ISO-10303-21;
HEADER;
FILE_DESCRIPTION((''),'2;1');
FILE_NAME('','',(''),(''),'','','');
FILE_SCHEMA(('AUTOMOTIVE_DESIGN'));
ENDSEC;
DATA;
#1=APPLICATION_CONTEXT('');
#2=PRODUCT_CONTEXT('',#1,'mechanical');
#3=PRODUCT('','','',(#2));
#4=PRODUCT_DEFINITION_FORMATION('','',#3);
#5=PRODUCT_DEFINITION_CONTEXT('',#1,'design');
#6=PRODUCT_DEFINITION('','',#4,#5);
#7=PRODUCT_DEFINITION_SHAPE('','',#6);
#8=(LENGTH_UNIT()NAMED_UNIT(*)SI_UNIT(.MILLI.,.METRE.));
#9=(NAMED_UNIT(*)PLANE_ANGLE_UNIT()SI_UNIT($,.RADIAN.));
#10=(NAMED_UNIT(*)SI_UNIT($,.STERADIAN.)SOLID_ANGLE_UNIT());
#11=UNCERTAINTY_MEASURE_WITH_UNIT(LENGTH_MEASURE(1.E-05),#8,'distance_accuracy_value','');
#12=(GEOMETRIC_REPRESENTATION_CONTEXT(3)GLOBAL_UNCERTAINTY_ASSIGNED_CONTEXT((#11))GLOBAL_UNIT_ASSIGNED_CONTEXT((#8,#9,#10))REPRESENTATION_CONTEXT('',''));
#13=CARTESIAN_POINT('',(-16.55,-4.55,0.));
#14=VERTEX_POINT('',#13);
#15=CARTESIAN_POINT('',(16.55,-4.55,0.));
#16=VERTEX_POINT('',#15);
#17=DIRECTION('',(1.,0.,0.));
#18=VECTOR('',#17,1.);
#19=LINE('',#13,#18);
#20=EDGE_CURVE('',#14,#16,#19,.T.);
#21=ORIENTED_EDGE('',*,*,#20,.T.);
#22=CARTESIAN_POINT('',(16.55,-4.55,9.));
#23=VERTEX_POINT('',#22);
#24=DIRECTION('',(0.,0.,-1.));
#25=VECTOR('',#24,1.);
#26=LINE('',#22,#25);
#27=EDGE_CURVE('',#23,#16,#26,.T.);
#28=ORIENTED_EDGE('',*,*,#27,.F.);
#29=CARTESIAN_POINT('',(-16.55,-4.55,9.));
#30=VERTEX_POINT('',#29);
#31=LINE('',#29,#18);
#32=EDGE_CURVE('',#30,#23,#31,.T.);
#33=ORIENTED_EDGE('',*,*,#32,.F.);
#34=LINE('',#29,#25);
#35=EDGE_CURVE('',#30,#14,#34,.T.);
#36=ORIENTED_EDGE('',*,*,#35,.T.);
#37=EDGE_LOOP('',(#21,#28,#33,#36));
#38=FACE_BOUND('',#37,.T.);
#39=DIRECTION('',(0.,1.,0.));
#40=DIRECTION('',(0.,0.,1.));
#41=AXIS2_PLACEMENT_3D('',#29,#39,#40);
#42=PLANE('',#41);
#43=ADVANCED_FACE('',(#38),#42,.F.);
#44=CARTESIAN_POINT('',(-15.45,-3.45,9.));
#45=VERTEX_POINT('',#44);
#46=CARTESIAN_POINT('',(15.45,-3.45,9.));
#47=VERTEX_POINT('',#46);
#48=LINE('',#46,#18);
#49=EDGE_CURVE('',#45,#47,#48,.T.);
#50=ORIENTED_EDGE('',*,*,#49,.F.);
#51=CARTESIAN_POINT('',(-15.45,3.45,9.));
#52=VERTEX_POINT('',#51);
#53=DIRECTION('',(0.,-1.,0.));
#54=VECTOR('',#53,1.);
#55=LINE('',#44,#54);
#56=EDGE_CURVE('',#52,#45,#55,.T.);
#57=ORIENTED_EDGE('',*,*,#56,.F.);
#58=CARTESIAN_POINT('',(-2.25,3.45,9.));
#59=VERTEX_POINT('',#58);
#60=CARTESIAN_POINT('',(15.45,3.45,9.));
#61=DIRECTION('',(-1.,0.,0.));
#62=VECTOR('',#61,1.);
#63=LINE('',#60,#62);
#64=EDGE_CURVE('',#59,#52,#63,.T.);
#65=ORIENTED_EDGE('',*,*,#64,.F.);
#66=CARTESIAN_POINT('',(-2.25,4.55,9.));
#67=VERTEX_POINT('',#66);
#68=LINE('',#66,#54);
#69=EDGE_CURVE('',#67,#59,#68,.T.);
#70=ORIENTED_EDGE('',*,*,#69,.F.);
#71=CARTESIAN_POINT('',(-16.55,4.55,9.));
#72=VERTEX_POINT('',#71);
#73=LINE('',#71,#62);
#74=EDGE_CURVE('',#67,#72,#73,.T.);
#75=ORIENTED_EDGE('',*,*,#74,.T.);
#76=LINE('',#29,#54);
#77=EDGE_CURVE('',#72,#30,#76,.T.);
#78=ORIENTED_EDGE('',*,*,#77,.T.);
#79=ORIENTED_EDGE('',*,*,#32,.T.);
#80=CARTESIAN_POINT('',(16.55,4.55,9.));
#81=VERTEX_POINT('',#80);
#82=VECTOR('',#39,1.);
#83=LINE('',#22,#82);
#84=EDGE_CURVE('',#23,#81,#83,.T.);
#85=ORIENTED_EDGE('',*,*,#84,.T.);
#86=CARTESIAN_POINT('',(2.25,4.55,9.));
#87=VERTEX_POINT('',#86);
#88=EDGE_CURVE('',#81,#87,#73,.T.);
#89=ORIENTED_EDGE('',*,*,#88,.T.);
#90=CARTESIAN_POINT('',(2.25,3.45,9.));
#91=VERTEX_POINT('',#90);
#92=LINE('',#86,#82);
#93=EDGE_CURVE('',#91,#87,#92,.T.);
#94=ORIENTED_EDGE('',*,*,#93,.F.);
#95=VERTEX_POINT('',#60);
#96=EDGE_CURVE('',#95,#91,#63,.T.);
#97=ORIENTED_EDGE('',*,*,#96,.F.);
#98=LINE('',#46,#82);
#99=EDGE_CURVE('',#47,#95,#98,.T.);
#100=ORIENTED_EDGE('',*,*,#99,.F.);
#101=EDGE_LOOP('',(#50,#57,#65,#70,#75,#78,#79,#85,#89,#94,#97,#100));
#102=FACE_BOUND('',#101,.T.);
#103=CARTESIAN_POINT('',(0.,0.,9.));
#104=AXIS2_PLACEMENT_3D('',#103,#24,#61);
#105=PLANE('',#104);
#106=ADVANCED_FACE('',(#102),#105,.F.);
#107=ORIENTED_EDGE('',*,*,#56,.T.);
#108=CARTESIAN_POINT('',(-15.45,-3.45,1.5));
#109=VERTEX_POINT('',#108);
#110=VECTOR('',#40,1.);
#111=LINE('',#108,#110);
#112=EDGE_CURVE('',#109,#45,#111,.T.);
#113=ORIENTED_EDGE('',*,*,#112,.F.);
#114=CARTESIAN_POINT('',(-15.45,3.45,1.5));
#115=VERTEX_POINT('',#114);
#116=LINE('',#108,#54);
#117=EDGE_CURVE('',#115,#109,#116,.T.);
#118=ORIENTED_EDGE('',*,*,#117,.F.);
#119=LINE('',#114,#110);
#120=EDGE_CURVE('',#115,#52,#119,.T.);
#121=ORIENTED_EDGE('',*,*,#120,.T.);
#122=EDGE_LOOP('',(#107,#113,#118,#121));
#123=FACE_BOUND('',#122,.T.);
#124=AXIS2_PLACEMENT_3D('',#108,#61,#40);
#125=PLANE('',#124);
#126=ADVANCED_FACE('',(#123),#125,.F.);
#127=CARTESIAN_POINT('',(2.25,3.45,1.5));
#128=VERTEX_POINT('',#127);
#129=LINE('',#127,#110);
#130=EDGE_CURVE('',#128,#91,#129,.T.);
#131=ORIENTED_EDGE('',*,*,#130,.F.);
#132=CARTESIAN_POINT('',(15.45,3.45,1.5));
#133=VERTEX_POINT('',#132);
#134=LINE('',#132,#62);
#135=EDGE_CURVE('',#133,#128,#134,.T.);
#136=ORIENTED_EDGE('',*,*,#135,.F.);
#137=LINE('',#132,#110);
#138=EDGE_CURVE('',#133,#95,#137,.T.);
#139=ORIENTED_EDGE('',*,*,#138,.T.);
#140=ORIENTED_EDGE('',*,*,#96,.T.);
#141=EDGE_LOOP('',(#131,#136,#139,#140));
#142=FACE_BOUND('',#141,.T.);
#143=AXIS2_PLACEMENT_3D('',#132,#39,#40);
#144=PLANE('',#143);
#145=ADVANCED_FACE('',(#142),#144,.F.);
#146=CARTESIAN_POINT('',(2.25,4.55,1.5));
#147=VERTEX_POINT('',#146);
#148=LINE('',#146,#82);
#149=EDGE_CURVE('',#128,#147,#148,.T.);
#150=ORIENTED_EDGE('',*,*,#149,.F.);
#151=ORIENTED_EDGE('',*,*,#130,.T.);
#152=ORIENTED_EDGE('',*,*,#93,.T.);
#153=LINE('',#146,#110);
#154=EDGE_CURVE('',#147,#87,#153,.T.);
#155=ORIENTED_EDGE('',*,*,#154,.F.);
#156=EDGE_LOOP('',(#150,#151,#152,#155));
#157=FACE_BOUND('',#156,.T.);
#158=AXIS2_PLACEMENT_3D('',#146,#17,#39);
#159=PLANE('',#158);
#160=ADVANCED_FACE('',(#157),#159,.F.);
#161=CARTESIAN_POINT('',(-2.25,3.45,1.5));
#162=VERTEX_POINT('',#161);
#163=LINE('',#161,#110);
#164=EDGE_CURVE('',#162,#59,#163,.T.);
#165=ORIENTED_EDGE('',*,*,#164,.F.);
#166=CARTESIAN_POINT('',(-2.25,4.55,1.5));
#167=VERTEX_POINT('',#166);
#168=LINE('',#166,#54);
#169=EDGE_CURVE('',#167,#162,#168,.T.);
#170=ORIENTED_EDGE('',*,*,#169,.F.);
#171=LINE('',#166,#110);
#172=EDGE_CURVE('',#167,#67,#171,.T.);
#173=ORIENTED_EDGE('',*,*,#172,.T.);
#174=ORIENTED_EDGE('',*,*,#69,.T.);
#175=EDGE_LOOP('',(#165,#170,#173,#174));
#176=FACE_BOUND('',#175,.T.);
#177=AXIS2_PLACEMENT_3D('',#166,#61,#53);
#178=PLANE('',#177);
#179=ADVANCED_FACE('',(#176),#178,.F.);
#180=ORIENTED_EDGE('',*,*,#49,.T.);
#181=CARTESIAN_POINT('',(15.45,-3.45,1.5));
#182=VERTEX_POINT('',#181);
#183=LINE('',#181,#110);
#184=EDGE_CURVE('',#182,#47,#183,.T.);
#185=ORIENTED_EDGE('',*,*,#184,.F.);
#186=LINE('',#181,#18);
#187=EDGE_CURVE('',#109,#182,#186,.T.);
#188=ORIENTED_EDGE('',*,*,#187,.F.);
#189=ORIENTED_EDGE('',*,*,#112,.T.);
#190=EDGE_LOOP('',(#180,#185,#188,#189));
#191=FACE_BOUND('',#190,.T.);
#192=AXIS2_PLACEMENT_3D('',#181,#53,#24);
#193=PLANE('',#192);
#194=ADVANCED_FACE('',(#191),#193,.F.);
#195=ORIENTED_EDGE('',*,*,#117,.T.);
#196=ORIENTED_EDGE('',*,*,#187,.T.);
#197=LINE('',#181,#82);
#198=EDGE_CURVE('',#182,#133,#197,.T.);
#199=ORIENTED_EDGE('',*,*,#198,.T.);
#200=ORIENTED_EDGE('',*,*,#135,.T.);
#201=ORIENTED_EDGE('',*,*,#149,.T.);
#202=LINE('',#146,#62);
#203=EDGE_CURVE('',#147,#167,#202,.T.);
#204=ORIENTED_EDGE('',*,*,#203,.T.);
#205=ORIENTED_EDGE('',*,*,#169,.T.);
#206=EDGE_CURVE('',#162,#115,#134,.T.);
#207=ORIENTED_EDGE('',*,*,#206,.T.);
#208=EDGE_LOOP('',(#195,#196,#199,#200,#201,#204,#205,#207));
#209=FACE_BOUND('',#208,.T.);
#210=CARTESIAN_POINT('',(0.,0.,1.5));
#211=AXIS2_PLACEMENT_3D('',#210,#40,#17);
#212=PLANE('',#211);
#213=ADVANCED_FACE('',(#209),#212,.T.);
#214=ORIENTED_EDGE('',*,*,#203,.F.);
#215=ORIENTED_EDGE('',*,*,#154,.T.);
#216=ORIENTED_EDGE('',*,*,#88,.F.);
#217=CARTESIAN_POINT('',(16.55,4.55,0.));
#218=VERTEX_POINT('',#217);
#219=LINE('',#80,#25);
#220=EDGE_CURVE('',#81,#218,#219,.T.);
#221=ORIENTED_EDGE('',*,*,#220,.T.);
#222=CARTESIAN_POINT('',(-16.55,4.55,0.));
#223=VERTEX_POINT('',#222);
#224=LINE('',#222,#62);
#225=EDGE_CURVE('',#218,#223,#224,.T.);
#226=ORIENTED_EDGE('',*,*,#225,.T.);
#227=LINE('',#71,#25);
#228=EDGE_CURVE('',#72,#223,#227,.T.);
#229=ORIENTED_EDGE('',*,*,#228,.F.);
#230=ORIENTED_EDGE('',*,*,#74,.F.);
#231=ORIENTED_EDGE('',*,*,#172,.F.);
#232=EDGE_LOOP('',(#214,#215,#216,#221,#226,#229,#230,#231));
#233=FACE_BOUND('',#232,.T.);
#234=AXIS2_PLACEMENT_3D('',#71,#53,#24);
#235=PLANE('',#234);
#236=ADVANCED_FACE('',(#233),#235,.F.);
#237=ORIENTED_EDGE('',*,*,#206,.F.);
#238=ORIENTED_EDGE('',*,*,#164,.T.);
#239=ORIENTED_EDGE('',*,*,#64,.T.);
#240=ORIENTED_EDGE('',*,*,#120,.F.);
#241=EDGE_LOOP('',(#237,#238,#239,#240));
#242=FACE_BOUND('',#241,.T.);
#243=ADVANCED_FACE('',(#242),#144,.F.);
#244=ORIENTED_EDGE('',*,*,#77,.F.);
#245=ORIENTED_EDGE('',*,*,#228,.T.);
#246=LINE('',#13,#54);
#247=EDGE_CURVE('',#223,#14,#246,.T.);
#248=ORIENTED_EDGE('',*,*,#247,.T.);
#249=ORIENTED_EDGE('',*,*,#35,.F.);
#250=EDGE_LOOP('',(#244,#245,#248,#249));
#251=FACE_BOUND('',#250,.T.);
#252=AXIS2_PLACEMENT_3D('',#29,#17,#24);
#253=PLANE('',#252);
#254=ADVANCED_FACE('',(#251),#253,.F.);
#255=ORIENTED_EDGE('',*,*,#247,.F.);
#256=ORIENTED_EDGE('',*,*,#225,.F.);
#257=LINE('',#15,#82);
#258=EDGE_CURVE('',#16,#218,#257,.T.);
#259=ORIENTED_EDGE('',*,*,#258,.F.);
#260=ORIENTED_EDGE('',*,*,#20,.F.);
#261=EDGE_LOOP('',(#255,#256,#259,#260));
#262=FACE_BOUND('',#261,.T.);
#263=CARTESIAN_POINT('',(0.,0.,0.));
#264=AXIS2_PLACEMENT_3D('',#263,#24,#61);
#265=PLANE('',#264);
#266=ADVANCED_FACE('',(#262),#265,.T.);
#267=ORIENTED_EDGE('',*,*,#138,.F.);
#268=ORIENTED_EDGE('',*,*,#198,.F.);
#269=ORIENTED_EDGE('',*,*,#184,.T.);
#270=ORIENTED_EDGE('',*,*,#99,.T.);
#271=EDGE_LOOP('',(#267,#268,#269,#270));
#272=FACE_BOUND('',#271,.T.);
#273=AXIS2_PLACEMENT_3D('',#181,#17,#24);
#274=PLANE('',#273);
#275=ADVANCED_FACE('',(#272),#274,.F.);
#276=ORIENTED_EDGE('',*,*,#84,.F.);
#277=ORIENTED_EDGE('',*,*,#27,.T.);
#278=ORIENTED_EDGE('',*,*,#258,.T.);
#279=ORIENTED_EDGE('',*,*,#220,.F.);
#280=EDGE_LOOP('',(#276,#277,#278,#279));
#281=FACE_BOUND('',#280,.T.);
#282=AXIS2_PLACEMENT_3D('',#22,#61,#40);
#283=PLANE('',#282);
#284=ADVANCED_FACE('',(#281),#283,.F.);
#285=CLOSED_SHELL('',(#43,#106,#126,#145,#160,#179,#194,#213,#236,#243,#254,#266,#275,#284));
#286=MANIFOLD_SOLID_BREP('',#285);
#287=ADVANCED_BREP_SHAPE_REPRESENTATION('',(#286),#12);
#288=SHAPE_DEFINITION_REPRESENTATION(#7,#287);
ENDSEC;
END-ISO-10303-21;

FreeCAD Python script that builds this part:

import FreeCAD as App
import Part
import Sketcher

V = App.Vector


def add_polygon(sketch, points):
    """Adds a closed chain of lines whose ends are joined by coincident constraints."""
    first, n = sketch.GeometryCount, len(points)
    for a, b in zip(points, points[1:] + points[:1]):
        sketch.addGeometry(Part.LineSegment(App.Vector(*a, 0), App.Vector(*b, 0)), False)
    for i in range(n):
        sketch.addConstraint(Sketcher.Constraint("Coincident", first + i, 2, first + (i + 1) % n, 1))

doc = App.newDocument("Part")
body = doc.addObject("PartDesign::Body", "Body")

# Sketch on XY plane
sketch1 = body.newObject("Sketcher::SketchObject", "Sketch")
sketch1.AttachmentSupport = (doc.getObject("XY_Plane"), [""])
sketch1.MapMode = "FlatFace"
add_polygon(sketch1, [(-17, 5), (-17, -5), (17, -5), (17, 5)])  # lines 0-3
sketch1.addConstraint(Sketcher.Constraint("Vertical", 0))
sketch1.addConstraint(Sketcher.Constraint("Horizontal", 1))
sketch1.addConstraint(Sketcher.Constraint("Vertical", 2))
sketch1.addConstraint(Sketcher.Constraint("Horizontal", 3))
sketch1.addConstraint(Sketcher.Constraint("Symmetric", 0, 2, 2, 2, -1, 1))
sketch1.addConstraint(Sketcher.Constraint("DistanceX", 1, 1, 1, 2, 33.1))
sketch1.addConstraint(Sketcher.Constraint("DistanceY", 0, 2, 0, 1, 9.1))
pad1 = body.newObject("PartDesign::Pad", "Pad")
pad1.Profile = sketch1
pad1.Length = 9

# Sketch on XY plane
sketch2 = body.newObject("Sketcher::SketchObject", "Sketch001")
sketch2.AttachmentSupport = (doc.getObject("XY_Plane"), [""])
sketch2.MapMode = "FlatFace"
sketch2.AttachmentOffset = App.Placement(V(0, 0, 9), App.Rotation())
add_polygon(sketch2, [(-15, 3), (-15, -3), (15, -3), (15, 3)])  # lines 0-3
sketch2.addConstraint(Sketcher.Constraint("Vertical", 0))
sketch2.addConstraint(Sketcher.Constraint("Horizontal", 1))
sketch2.addConstraint(Sketcher.Constraint("Vertical", 2))
sketch2.addConstraint(Sketcher.Constraint("Horizontal", 3))
sketch2.addConstraint(Sketcher.Constraint("Symmetric", 0, 2, 2, 2, -1, 1))
sketch2.addConstraint(Sketcher.Constraint("DistanceX", 1, 1, 1, 2, 30.9))
sketch2.addConstraint(Sketcher.Constraint("DistanceY", 0, 2, 0, 1, 6.9))
pocket1 = body.newObject("PartDesign::Pocket", "Pocket")
pocket1.Profile = sketch2
pocket1.Length = 7.5

# Sketch on XY plane
sketch3 = body.newObject("Sketcher::SketchObject", "Sketch002")
sketch3.AttachmentSupport = (doc.getObject("XY_Plane"), [""])
sketch3.MapMode = "FlatFace"
sketch3.AttachmentOffset = App.Placement(V(0, 0, 9), App.Rotation())
add_polygon(sketch3, [(-2.2, 4.5), (-2.2, 3.5), (2.2, 3.5), (2.2, 4.5)])  # lines 0-3
sketch3.addConstraint(Sketcher.Constraint("Vertical", 0))
sketch3.addConstraint(Sketcher.Constraint("Horizontal", 1))
sketch3.addConstraint(Sketcher.Constraint("Vertical", 2))
sketch3.addConstraint(Sketcher.Constraint("Horizontal", 3))
sketch3.addConstraint(Sketcher.Constraint("DistanceX", 1, 1, 1, 2, 4.5))
sketch3.addConstraint(Sketcher.Constraint("DistanceY", 0, 2, 0, 1, 1.1))
sketch3.addConstraint(Sketcher.Constraint("DistanceX", 0, 2, -1, 1, 2.25))
sketch3.addConstraint(Sketcher.Constraint("DistanceY", -1, 1, 0, 2, 3.45))
pocket2 = body.newObject("PartDesign::Pocket", "Pocket001")
pocket2.Profile = sketch3
pocket2.Length = 7.5

doc.recompute()
